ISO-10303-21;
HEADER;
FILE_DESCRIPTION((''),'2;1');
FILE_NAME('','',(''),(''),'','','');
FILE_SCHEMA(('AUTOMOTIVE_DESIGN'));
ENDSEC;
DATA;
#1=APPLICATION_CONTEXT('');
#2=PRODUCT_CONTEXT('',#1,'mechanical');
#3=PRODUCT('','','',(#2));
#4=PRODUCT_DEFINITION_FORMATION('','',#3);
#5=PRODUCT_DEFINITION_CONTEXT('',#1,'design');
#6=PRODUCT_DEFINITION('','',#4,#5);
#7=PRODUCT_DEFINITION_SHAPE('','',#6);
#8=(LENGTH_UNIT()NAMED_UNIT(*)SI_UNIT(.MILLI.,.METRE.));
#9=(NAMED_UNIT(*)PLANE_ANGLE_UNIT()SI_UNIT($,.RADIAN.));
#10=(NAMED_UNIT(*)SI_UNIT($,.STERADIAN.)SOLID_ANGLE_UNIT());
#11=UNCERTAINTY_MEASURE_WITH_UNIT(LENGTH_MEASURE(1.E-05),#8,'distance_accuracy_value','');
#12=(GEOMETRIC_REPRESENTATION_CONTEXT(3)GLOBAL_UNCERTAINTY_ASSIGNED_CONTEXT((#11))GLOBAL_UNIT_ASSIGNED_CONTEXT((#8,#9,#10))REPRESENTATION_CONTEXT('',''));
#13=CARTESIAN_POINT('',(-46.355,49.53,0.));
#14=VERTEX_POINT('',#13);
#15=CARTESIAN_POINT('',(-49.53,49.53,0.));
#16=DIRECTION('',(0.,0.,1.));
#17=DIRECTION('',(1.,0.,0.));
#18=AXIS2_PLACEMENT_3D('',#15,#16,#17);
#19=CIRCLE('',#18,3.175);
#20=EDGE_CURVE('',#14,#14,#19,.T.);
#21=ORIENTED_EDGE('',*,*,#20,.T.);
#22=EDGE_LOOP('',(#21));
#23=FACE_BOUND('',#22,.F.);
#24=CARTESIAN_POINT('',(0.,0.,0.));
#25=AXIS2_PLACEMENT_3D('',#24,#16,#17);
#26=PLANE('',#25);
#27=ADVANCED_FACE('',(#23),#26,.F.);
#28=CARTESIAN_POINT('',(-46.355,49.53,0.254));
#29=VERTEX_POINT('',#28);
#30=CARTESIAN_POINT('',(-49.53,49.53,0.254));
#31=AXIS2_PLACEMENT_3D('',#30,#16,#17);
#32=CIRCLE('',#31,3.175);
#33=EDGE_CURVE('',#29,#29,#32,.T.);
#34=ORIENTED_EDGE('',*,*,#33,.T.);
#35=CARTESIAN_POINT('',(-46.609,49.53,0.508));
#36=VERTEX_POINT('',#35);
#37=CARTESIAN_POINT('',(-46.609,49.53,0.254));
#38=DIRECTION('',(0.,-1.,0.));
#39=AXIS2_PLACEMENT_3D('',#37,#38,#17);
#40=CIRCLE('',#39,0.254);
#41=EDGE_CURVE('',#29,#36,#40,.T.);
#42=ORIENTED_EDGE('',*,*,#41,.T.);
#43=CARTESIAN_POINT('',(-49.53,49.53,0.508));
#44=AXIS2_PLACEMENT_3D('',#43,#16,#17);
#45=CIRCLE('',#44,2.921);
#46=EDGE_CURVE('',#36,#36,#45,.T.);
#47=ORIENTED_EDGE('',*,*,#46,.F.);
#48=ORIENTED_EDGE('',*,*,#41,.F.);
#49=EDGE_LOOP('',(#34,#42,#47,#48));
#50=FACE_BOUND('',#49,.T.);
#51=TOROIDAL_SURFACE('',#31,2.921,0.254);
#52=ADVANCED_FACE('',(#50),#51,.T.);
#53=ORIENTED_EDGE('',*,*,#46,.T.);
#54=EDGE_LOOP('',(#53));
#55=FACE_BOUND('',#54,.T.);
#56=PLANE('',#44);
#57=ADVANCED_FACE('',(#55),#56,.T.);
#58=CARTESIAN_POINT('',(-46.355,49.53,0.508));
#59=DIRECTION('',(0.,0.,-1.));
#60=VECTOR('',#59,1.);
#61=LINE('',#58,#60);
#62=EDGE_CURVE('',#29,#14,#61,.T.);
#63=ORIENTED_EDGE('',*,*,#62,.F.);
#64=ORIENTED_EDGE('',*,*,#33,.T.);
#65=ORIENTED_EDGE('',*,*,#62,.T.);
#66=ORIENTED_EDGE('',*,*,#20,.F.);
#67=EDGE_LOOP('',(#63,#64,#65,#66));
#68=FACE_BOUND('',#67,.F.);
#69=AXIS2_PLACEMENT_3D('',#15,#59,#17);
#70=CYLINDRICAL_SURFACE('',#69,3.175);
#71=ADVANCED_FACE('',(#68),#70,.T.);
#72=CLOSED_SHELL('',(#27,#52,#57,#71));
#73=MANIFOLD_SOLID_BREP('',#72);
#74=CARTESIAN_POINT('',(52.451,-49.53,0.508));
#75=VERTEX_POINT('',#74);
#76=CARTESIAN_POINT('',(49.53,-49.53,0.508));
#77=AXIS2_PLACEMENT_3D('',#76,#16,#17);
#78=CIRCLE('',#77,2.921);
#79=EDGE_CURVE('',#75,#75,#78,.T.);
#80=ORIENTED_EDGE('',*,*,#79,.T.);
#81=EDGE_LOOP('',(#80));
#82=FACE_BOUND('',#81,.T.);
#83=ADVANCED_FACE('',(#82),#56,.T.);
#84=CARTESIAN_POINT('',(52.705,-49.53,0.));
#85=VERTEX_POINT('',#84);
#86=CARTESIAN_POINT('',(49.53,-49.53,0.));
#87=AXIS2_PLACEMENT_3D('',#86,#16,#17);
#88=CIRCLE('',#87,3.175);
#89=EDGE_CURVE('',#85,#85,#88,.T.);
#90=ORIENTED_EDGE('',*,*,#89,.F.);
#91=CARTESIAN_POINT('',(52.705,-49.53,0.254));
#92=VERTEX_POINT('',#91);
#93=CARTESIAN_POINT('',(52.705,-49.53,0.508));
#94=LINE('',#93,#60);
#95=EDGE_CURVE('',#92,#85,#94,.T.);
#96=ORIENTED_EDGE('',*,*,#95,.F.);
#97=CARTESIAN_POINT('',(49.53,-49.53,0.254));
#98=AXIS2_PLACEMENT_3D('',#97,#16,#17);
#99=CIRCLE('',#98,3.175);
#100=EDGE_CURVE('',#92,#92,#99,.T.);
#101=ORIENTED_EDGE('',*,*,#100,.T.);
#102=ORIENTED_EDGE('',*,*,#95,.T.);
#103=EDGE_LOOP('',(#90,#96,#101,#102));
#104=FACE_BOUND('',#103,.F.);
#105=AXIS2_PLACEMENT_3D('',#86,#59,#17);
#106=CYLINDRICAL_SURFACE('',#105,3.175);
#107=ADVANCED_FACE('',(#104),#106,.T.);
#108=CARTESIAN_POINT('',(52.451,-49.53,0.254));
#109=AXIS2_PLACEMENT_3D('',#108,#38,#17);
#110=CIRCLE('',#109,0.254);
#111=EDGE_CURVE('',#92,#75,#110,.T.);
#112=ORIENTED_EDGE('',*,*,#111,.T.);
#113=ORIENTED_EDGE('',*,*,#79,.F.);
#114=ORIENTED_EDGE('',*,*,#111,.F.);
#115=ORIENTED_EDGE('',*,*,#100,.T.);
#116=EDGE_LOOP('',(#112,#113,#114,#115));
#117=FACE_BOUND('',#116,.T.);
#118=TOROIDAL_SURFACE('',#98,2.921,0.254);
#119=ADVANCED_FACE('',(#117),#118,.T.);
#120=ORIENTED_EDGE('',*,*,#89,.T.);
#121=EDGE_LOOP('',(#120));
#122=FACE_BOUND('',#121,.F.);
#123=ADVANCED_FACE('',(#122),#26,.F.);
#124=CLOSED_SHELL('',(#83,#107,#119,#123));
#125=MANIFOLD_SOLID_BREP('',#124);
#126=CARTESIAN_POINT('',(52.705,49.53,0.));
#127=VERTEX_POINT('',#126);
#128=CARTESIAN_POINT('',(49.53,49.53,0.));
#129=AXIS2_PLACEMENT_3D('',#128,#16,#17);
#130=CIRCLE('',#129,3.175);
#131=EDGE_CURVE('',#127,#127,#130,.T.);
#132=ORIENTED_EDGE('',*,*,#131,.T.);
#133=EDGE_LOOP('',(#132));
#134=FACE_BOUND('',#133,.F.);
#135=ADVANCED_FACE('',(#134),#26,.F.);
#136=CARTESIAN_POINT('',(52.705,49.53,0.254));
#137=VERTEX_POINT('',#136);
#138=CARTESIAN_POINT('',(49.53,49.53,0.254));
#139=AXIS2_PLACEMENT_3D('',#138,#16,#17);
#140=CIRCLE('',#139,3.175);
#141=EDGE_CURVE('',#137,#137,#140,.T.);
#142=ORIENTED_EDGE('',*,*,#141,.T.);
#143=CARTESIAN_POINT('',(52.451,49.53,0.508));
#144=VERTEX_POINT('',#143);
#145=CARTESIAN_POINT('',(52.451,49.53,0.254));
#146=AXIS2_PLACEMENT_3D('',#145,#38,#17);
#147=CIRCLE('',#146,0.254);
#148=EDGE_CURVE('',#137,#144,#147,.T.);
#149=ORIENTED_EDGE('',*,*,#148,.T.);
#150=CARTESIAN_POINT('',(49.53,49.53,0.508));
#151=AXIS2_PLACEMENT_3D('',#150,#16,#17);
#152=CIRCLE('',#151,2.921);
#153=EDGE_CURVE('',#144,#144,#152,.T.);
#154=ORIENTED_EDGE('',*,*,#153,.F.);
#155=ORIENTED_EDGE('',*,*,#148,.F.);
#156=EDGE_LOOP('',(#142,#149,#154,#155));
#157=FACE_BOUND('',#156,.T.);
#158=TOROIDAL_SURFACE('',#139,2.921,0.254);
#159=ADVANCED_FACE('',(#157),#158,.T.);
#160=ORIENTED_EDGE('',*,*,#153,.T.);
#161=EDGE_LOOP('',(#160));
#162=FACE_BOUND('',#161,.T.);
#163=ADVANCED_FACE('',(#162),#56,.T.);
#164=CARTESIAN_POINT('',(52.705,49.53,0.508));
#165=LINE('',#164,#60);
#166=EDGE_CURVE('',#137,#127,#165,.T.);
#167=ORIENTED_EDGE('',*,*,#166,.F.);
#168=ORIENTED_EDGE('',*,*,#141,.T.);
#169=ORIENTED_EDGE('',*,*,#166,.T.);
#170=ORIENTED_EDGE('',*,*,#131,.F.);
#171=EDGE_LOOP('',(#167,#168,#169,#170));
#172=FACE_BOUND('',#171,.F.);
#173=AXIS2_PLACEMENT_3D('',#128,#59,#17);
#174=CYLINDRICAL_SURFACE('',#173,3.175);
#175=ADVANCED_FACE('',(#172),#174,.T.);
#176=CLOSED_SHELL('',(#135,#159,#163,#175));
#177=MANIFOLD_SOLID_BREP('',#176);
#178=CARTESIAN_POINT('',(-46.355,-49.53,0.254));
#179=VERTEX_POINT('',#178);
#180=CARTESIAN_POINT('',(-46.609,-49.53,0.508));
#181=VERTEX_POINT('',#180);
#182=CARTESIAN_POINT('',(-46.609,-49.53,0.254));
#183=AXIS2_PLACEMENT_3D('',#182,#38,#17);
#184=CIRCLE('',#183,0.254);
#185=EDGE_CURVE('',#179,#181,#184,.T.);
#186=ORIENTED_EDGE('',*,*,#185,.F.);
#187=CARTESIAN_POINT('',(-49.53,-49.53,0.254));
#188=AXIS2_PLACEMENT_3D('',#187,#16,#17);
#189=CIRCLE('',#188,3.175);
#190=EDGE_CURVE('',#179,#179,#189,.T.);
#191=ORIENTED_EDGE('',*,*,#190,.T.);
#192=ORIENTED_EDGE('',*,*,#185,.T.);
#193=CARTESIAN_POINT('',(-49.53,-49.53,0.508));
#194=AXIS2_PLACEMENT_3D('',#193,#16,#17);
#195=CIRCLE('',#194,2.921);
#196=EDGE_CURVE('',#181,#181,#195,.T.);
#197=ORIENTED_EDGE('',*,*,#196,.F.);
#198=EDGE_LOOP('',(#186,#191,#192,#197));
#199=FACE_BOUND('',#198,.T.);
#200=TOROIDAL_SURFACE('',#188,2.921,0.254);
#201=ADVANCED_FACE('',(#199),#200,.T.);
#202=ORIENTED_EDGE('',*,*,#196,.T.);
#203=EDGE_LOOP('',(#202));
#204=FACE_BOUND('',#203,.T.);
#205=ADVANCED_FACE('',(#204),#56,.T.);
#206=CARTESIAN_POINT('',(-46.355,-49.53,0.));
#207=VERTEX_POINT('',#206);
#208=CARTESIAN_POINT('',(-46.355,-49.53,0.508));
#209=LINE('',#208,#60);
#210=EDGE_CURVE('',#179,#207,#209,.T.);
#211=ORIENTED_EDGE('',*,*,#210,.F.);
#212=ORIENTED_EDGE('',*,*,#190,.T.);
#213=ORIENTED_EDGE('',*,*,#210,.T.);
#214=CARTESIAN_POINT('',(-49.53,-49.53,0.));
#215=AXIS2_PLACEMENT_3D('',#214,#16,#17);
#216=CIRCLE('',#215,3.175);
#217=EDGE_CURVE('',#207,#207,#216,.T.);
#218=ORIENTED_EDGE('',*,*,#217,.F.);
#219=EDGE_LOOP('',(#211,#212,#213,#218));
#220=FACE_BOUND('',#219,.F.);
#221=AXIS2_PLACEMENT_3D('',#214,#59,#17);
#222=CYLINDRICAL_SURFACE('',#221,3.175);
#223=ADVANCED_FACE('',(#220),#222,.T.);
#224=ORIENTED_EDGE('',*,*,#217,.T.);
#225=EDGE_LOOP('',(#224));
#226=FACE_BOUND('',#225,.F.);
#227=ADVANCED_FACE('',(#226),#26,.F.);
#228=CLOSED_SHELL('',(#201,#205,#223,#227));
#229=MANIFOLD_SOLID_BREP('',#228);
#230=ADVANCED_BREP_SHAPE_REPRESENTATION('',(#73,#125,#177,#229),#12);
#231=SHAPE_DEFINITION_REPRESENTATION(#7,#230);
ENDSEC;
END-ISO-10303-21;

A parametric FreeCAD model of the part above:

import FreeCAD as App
import Part
import Sketcher
from FreeCAD import Vector
Q = App.Units.Quantity


def edges_at(feature, points):
    """Names of the edges that pass closest to the given points."""
    edges = feature.Shape.Edges
    near = lambda p: min(range(len(edges)), key=lambda i: edges[i].distToShape(Part.Vertex(*p))[0])
    return sorted({f"Edge{near(p) + 1}" for p in points})

doc = App.newDocument("Part")
body = doc.addObject("PartDesign::Body", "Body")
body.AllowCompound = True

sketch1 = body.newObject("Sketcher::SketchObject", "Sketch")
sketch1.AttachmentSupport = (doc.getObject("XY_Plane"), [""])
sketch1.MapMode = "FlatFace"
sketch1.addGeometry([
    Part.Circle(Vector(49.5, 49.5, 0), Vector(0, 0, 1), 3.2),
    Part.Circle(Vector(49.5, -49.5, 0), Vector(0, 0, 1), 3.2),
    Part.Circle(Vector(-49.5, -49.5, 0), Vector(0, 0, 1), 3.2),
    Part.Circle(Vector(-49.5, 49.5, 0), Vector(0, 0, 1), 3.2),
], False)
sketch1.addConstraint([
    Sketcher.Constraint("Equal", 0, 1),
    Sketcher.Constraint("Equal", 1, 2),
    Sketcher.Constraint("Equal", 2, 3),
    Sketcher.Constraint("Symmetric", 0, 3, 2, 3, -1, 1),
    Sketcher.Constraint("Symmetric", 1, 3, 3, 3, -1, 1),
    Sketcher.Constraint("Symmetric", 1, 3, 2, 3, -2),
    Sketcher.Constraint("Diameter", 0, Q("0.25 in")),
    Sketcher.Constraint("DistanceY", 1, 3, 0, 3, Q("3.9 in")),
    Sketcher.Constraint("DistanceX", 2, 3, 1, 3, Q("3.9 in")),
])
pad1 = body.newObject("PartDesign::Pad", "Pad")
pad1.Profile = sketch1
pad1.Length = Q("0.01 in")

sketch2 = body.newObject("Sketcher::SketchObject", "Sketch001")
sketch2.AttachmentSupport = (doc.getObject("XY_Plane"), [""])
sketch2.MapMode = "FlatFace"
sketch2.AttachmentOffset = App.Placement(Vector(0, 0, 0.01 * 25.4), App.Rotation())
sketch2.addGeometry([
    Part.Circle(Vector(-49.5, 49.5, 0), Vector(0, 0, 1), 3.2),
    Part.Circle(Vector(49.5, 49.5, 0), Vector(0, 0, 1), 3.2),
    Part.Circle(Vector(49.5, -49.5, 0), Vector(0, 0, 1), 3.2),
    Part.Circle(Vector(-49.5, -49.5, 0), Vector(0, 0, 1), 3.2),
], False)
sketch2.addConstraint([
    Sketcher.Constraint("Equal", 0, 1),
    Sketcher.Constraint("Equal", 1, 2),
    Sketcher.Constraint("Equal", 2, 3),
    Sketcher.Constraint("Symmetric", 0, 3, 2, 3, -1, 1),
    Sketcher.Constraint("Symmetric", 1, 3, 3, 3, -1, 1),
    Sketcher.Constraint("Symmetric", 0, 3, 1, 3, -2),
    Sketcher.Constraint("Diameter", 0, Q("0.25 in")),
    Sketcher.Constraint("DistanceX", 0, 3, 1, 3, Q("3.9 in")),
    Sketcher.Constraint("DistanceY", 2, 3, 1, 3, Q("3.9 in")),
])
pad2 = body.newObject("PartDesign::Pad", "Pad001")
pad2.Profile = sketch2
pad2.Length = Q("0.01 in")
doc.recompute()

fillet = body.newObject("PartDesign::Fillet", "Fillet")
fillet.Base = (pad2, edges_at(pad2, [
    (46.355, -49.53, 0.508),
    (46.355, 49.53, 0.508),
    (-52.705, 49.53, 0.508),
    (-52.705, -49.53, 0.508),
]))
fillet.Radius = Q("0.01 in")

doc.recompute()
